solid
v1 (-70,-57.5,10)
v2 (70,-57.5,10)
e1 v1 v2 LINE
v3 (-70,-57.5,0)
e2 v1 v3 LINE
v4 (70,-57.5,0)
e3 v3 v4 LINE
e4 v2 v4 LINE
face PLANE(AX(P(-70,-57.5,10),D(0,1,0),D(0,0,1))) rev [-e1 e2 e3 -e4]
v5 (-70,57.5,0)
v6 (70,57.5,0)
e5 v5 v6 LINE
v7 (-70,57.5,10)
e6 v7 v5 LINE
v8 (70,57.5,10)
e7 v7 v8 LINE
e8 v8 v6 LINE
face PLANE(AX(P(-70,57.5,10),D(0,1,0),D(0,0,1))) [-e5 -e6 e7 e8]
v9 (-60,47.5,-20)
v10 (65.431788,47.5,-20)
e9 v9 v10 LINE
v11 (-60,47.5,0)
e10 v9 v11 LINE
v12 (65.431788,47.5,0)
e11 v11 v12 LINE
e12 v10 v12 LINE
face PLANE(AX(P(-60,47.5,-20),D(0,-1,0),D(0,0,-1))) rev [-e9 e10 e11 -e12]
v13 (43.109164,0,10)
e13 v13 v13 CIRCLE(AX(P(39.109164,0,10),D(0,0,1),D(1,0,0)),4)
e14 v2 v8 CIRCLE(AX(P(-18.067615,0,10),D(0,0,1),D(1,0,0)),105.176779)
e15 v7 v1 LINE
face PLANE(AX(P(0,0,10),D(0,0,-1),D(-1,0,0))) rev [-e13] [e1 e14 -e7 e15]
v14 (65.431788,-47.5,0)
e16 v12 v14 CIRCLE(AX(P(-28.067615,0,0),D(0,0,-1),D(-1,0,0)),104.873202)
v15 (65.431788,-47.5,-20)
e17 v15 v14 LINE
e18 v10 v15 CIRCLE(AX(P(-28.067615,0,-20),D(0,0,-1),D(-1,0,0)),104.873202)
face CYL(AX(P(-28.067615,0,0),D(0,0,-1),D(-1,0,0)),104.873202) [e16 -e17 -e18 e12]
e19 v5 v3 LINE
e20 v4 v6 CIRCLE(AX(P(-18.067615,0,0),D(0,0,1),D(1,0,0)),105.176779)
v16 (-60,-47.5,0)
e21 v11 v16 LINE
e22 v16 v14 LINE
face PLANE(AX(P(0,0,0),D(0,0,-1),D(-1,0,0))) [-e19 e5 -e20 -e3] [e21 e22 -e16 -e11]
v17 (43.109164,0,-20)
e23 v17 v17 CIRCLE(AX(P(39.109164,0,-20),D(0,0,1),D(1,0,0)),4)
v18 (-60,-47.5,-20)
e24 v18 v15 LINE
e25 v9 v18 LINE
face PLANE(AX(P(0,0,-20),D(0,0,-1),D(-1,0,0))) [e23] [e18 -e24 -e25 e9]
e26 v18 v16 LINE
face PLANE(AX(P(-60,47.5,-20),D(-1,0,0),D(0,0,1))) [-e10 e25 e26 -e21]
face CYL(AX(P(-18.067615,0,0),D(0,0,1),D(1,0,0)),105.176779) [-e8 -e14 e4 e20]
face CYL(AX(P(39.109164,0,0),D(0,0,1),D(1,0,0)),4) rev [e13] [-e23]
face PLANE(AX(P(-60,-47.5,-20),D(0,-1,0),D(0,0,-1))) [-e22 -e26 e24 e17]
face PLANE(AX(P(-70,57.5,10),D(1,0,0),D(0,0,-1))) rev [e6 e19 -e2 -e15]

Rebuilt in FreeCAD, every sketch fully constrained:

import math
import FreeCAD as App
import Part
import Sketcher
Q = App.Units.Quantity


def add_polygon(sketch, points):
    """Adds a closed chain of lines whose ends are joined by coincident constraints."""
    first, n = sketch.GeometryCount, len(points)
    for a, b in zip(points, points[1:] + points[:1]):
        sketch.addGeometry(Part.LineSegment(App.Vector(*a, 0), App.Vector(*b, 0)), False)
    for i in range(n):
        sketch.addConstraint(Sketcher.Constraint("Coincident", first + i, 2, first + (i + 1) % n, 1))

doc = App.newDocument("Part")
body = doc.addObject("PartDesign::Body", "Body")

# Sketch on XY plane
sketch1 = doc.addObject("Sketcher::SketchObject", "Sketch")
body.addObject(sketch1)
sketch1.AttachmentSupport = (doc.XY_Plane, [""])
sketch1.MapMode = "FlatFace"
add_polygon(sketch1, [(-70, 58), (-70, -58), (70, -58), (70, 58)])  # lines 0-3
sketch1.addConstraint([
    Sketcher.Constraint("Vertical", 0),
    Sketcher.Constraint("Horizontal", 1),
    Sketcher.Constraint("Vertical", 2),
    Sketcher.Constraint("Horizontal", 3),
    Sketcher.Constraint("Symmetric", 0, 2, 2, 2, -1, 1),
    Sketcher.Constraint("DistanceX", 1, 1, 1, 2, Q("140 mm")),
    Sketcher.Constraint("DistanceY", 0, 2, 0, 1, Q("115 mm")),
])
pad1 = doc.addObject("PartDesign::Pad", "Pad")
body.addObject(pad1)
pad1.Profile = sketch1
pad1.Length = 10

# Sketch on XY plane
sketch2 = doc.addObject("Sketcher::SketchObject", "Sketch001")
body.addObject(sketch2)
sketch2.AttachmentSupport = (doc.XY_Plane, [""])
sketch2.MapMode = "FlatFace"
sketch2.AttachmentOffset = App.Placement(App.Vector(0, 0, 10), App.Rotation())
sketch2.addGeometry([
    Part.ArcOfCircle(Part.Circle(App.Vector(-18, 0, 0), App.Vector(0, 0, 1), 105), math.radians(0), math.radians(33)),
    Part.LineSegment(App.Vector(70, 58, 0), App.Vector(70, -58, 0)),
    Part.ArcOfCircle(Part.Circle(App.Vector(-18, 0, 0), App.Vector(0, 0, 1), 105), math.radians(-33), math.radians(0)),
], False)
sketch2.addConstraint([
    Sketcher.Constraint("Coincident", 0, 2, 1, 1),
    Sketcher.Constraint("Coincident", 1, 2, 2, 1),
    Sketcher.Constraint("Tangent", 2, 2, 0, 1),
    Sketcher.Constraint("Vertical", 1),
    Sketcher.Constraint("Equal", 0, 2),
    Sketcher.Constraint("PointOnObject", 0, 3, -1),
    Sketcher.Constraint("PointOnObject", 2, 2, -1),
    Sketcher.Constraint("DistanceY", 1, 2, 1, 1, Q("115 mm")),
    Sketcher.Constraint("DistanceX", -1, 1, 0, 2, Q("70 mm")),
    Sketcher.Constraint("Radius", 0, Q("105.176779 mm")),
])
pad2 = doc.addObject("PartDesign::Pad", "Pad001")
body.addObject(pad2)
pad2.Profile = sketch2
pad2.Length = 10
pad2.Reversed = True

# Sketch on XY plane
sketch3 = doc.addObject("Sketcher::SketchObject", "Sketch002")
body.addObject(sketch3)
sketch3.AttachmentSupport = (doc.XY_Plane, [""])
sketch3.MapMode = "FlatFace"
sketch3.AttachmentOffset = App.Placement(App.Vector(0, 0, 10), App.Rotation())
sketch3.addGeometry(Part.Circle(App.Vector(37, 0, 0), App.Vector(0, 0, 1), 35), False)
sketch3.addConstraint([
    Sketcher.Constraint("PointOnObject", 0, 3, -1),
    Sketcher.Constraint("Diameter", 0, Q("70 mm")),
    Sketcher.Constraint("DistanceX", -1, 1, 0, 3, Q("37.109164 mm")),
])
pocket1 = doc.addObject("PartDesign::Pocket", "Pocket")
body.addObject(pocket1)
pocket1.Profile = sketch3
pocket1.Length = 10

# Sketch on XY plane
sketch4 = doc.addObject("Sketcher::SketchObject", "Sketch003")
body.addObject(sketch4)
sketch4.AttachmentSupport = (doc.XY_Plane, [""])
sketch4.MapMode = "FlatFace"
sketch4.AttachmentOffset = App.Placement(App.Vector(0, 0, 10), App.Rotation())
sketch4.addGeometry(Part.Circle(App.Vector(37, 0, 0), App.Vector(0, 0, 1), 35), False)
sketch4.addConstraint([
    Sketcher.Constraint("PointOnObject", 0, 3, -1),
    Sketcher.Constraint("Diameter", 0, Q("70 mm")),
    Sketcher.Constraint("DistanceX", -1, 1, 0, 3, Q("37.109164 mm")),
])
pad3 = doc.addObject("PartDesign::Pad", "Pad002")
body.addObject(pad3)
pad3.Profile = sketch4
pad3.Length = 10
pad3.Reversed = True

# Sketch on XY plane
sketch5 = doc.addObject("Sketcher::SketchObject", "Sketch004")
body.addObject(sketch5)
sketch5.AttachmentSupport = (doc.XY_Plane, [""])
sketch5.MapMode = "FlatFace"
sketch5.AttachmentOffset = App.Placement(App.Vector(0, 0, 10), App.Rotation())
sketch5.addGeometry(Part.Circle(App.Vector(39.1, 0, 0), App.Vector(0, 0, 1), 4), False)
sketch5.addConstraint([
    Sketcher.Constraint("PointOnObject", 0, 3, -1),
    Sketcher.Constraint("Diameter", 0, Q("8 mm")),
    Sketcher.Constraint("DistanceX", -1, 1, 0, 3, Q("39.109164 mm")),
])
pocket2 = doc.addObject("PartDesign::Pocket", "Pocket001")
body.addObject(pocket2)
pocket2.Profile = sketch5
pocket2.Type = "ThroughAll"

# Sketch on XY plane
sketch6 = doc.addObject("Sketcher::SketchObject", "Sketch005")
body.addObject(sketch6)
sketch6.AttachmentSupport = (doc.XY_Plane, [""])
sketch6.MapMode = "FlatFace"
add_polygon(sketch6, [(65, 48), (65, -48), (-60, -48), (-60, 48)])  # lines 0-3
sketch6.addConstraint([
    Sketcher.Constraint("Vertical", 0),
    Sketcher.Constraint("Horizontal", 1),
    Sketcher.Constraint("Vertical", 2),
    Sketcher.Constraint("Horizontal", 3),
    Sketcher.Constraint("DistanceY", 0, 2, 0, 1, Q("95 mm")),
    Sketcher.Constraint("DistanceX", 1, 2, -1, 1, Q("60 mm")),
    Sketcher.Constraint("DistanceY", 0, 2, -1, 1, Q("47.5 mm")),
    Sketcher.Constraint("DistanceX", 1, 2, 1, 1, Q("125.431788 mm")),
])
pad4 = doc.addObject("PartDesign::Pad", "Pad003")
body.addObject(pad4)
pad4.Profile = sketch6
pad4.Length = 20
pad4.Reversed = True

# Sketch on XY plane
sketch7 = doc.addObject("Sketcher::SketchObject", "Sketch006")
body.addObject(sketch7)
sketch7.AttachmentSupport = (doc.XY_Plane, [""])
sketch7.MapMode = "FlatFace"
sketch7.AttachmentOffset = App.Placement(App.Vector(0, 0, -20), App.Rotation())
sketch7.addGeometry([
    Part.LineSegment(App.Vector(65, -48, 0), App.Vector(65, 48, 0)),
    Part.ArcOfCircle(Part.Circle(App.Vector(-28, 0, 0), App.Vector(0, 0, 1), 105), math.radians(-27), math.radians(27)),
], False)
sketch7.addConstraint([
    Sketcher.Constraint("Coincident", 0, 1, 1, 1),
    Sketcher.Constraint("Coincident", 1, 2, 0, 2),
    Sketcher.Constraint("Vertical", 0),
    Sketcher.Constraint("PointOnObject", 1, 3, -1),
    Sketcher.Constraint("DistanceY", 0, 1, 0, 2, Q("95 mm")),
    Sketcher.Constraint("Radius", 1, Q("104.873202 mm")),
    Sketcher.Constraint("DistanceX", -1, 1, 0, 1, Q("65.431788 mm")),
])
pad5 = doc.addObject("PartDesign::Pad", "Pad004")
body.addObject(pad5)
pad5.Profile = sketch7
pad5.Length = 20

# Sketch on XY plane
sketch8 = doc.addObject("Sketcher::SketchObject", "Sketch007")
body.addObject(sketch8)
sketch8.AttachmentSupport = (doc.XY_Plane, [""])
sketch8.MapMode = "FlatFace"
sketch8.addGeometry(Part.Circle(App.Vector(39.1, 0, 0), App.Vector(0, 0, 1), 4), False)
sketch8.addConstraint([
    Sketcher.Constraint("PointOnObject", 0, 3, -1),
    Sketcher.Constraint("Diameter", 0, Q("8 mm")),
    Sketcher.Constraint("DistanceX", -1, 1, 0, 3, Q("39.109164 mm")),
])
pocket3 = doc.addObject("PartDesign::Pocket", "Pocket002")
body.addObject(pocket3)
pocket3.Profile = sketch8
pocket3.Type = "ThroughAll"

doc.recompute()
